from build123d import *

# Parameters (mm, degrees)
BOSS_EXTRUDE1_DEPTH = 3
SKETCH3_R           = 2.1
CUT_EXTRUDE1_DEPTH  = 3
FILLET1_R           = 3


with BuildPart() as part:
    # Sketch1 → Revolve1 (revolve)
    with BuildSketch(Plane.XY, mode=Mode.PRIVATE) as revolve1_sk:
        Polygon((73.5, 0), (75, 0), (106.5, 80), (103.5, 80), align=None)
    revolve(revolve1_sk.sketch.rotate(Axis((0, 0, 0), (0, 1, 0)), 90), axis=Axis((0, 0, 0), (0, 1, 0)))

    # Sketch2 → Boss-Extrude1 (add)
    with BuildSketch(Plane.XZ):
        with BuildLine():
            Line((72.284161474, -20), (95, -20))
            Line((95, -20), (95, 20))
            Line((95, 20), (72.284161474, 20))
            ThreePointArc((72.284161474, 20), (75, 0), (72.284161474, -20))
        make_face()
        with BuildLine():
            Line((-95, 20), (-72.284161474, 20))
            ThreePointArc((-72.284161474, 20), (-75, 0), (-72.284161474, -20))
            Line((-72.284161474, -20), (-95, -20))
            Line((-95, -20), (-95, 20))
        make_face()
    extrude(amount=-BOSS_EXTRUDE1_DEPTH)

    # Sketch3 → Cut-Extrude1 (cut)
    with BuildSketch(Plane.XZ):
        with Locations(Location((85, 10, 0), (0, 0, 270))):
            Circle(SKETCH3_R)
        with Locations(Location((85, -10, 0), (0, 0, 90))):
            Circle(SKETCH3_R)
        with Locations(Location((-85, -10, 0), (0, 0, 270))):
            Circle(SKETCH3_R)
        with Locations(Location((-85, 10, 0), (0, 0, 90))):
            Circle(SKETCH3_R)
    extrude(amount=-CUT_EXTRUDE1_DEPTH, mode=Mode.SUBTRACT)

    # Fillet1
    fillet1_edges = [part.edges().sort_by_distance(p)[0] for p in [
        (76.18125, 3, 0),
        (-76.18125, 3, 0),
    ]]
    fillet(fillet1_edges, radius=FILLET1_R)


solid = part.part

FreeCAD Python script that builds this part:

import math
import FreeCAD as App
import Part
import Sketcher
from FreeCAD import Vector
Q = App.Units.Quantity


def edges_at(feature, points):
    """Names of the edges that pass closest to the given points."""
    edges = feature.Shape.Edges
    near = lambda p: min(range(len(edges)), key=lambda i: edges[i].distToShape(Part.Vertex(*p))[0])
    return sorted({f"Edge{near(p) + 1}" for p in points})

doc = App.newDocument("Part")
body = doc.addObject("PartDesign::Body", "Body")

sketch1 = body.newObject("Sketcher::SketchObject", "Sketch")
sketch1.AttachmentSupport = (doc.getObject("XY_Plane"), [""])
sketch1.MapMode = "FlatFace"
sketch1.addGeometry([
    Part.LineSegment(Vector(73.5, 0, 0), Vector(75, 0, 0)),
    Part.LineSegment(Vector(75, 0, 0), Vector(106.5, 80, 0)),
    Part.LineSegment(Vector(106.5, 80, 0), Vector(103.5, 80, 0)),
    Part.LineSegment(Vector(103.5, 80, 0), Vector(73.5, 0, 0)),
], False)
sketch1.addConstraint([
    Sketcher.Constraint("Coincident", 0, 2, 1, 1),
    Sketcher.Constraint("Coincident", 1, 2, 2, 1),
    Sketcher.Constraint("Coincident", 2, 2, 3, 1),
    Sketcher.Constraint("Coincident", 3, 2, 0, 1),
    Sketcher.Constraint("Horizontal", 0),
    Sketcher.Constraint("Horizontal", 2),
    Sketcher.Constraint("PointOnObject", 0, 2, -1),
    Sketcher.Constraint("DistanceX", 2, 2, 2, 1, Q("3 mm")),
    Sketcher.Constraint("DistanceX", 0, 1, 0, 2, Q("1.5 mm")),
    Sketcher.Constraint("DistanceX", -1, 1, 0, 2, Q("75 mm")),
    Sketcher.Constraint("DistanceY", -1, 1, 1, 2, Q("80 mm")),
    Sketcher.Constraint("DistanceX", 3, 2, 2, 2, Q("30 mm")),
])
revolution = body.newObject("PartDesign::Revolution", "Revolution")
revolution.Profile = sketch1
revolution.ReferenceAxis = (sketch1, ["V_Axis"])
revolution.Angle = 360

sketch2 = body.newObject("Sketcher::SketchObject", "Sketch001")
sketch2.AttachmentSupport = (doc.getObject("XZ_Plane"), [""])
sketch2.MapMode = "FlatFace"
sketch2.addGeometry([
    Part.LineSegment(Vector(72, -20, 0), Vector(95, -20, 0)),
    Part.LineSegment(Vector(95, -20, 0), Vector(95, 20, 0)),
    Part.LineSegment(Vector(95, 20, 0), Vector(72, 20, 0)),
    Part.ArcOfCircle(Part.Circle(Vector(0, 0, 0), Vector(0, 0, 1), 75), math.radians(-15), math.radians(15)),
    Part.LineSegment(Vector(-72, 20, 0), Vector(-95, 20, 0)),
    Part.LineSegment(Vector(-95, 20, 0), Vector(-95, -20, 0)),
    Part.LineSegment(Vector(-95, -20, 0), Vector(-72, -20, 0)),
    Part.ArcOfCircle(Part.Circle(Vector(0, 0, 0), Vector(0, 0, 1), 75), math.radians(165), math.radians(195)),
], False)
sketch2.addConstraint([
    Sketcher.Constraint("Coincident", 0, 2, 1, 1),
    Sketcher.Constraint("Coincident", 1, 2, 2, 1),
    Sketcher.Constraint("Coincident", 2, 2, 3, 2),
    Sketcher.Constraint("Coincident", 3, 1, 0, 1),
    Sketcher.Constraint("Coincident", 4, 2, 5, 1),
    Sketcher.Constraint("Coincident", 5, 2, 6, 1),
    Sketcher.Constraint("Coincident", 6, 2, 7, 2),
    Sketcher.Constraint("Coincident", 7, 1, 4, 1),
    Sketcher.Constraint("Horizontal", 0),
    Sketcher.Constraint("Vertical", 1),
    Sketcher.Constraint("Horizontal", 2),
    Sketcher.Constraint("Horizontal", 4),
    Sketcher.Constraint("Vertical", 5),
    Sketcher.Constraint("Horizontal", 6),
    Sketcher.Constraint("Coincident", 3, 3, -1, 1),
    Sketcher.Constraint("Coincident", 7, 3, -1, 1),
    Sketcher.Constraint("Equal", 3, 7),
    Sketcher.Constraint("Symmetric", 0, 2, 4, 2, -1, 1),
    Sketcher.Constraint("Horizontal", 2, 2, 4, 2),
    Sketcher.Constraint("Horizontal", 3, 1, 5, 2),
    Sketcher.Constraint("Radius", 3, Q("75 mm")),
    Sketcher.Constraint("DistanceY", 1, 1, 1, 2, Q("40 mm")),
    Sketcher.Constraint("DistanceX", -1, 1, 0, 2, Q("95 mm")),
])
pad1 = body.newObject("PartDesign::Pad", "Pad")
pad1.Profile = sketch2
pad1.Length = 3
pad1.Reversed = True

sketch3 = body.newObject("Sketcher::SketchObject", "Sketch002")
sketch3.AttachmentSupport = (doc.getObject("XZ_Plane"), [""])
sketch3.MapMode = "FlatFace"
sketch3.addGeometry([
    Part.Circle(Vector(85, 10, 0), Vector(0, 0, 1), 2.1),
    Part.Circle(Vector(85, -10, 0), Vector(0, 0, 1), 2.1),
    Part.Circle(Vector(-85, -10, 0), Vector(0, 0, 1), 2.1),
    Part.Circle(Vector(-85, 10, 0), Vector(0, 0, 1), 2.1),
], False)
sketch3.addConstraint([
    Sketcher.Constraint("Equal", 0, 1),
    Sketcher.Constraint("Equal", 1, 2),
    Sketcher.Constraint("Equal", 2, 3),
    Sketcher.Constraint("Symmetric", 0, 3, 2, 3, -1, 1),
    Sketcher.Constraint("Symmetric", 1, 3, 3, 3, -1, 1),
    Sketcher.Constraint("Symmetric", 1, 3, 2, 3, -2),
    Sketcher.Constraint("Diameter", 0, Q("4.2 mm")),
    Sketcher.Constraint("DistanceX", -1, 1, 0, 3, Q("85 mm")),
    Sketcher.Constraint("DistanceY", -1, 1, 0, 3, Q("10 mm")),
])
pocket1 = body.newObject("PartDesign::Pocket", "Pocket")
pocket1.Profile = sketch3
pocket1.Length = 3
doc.recompute()

fillet = body.newObject("PartDesign::Fillet", "Fillet")
fillet.Base = (pocket1, edges_at(pocket1, [(76.181, 3, 0), (-76.181, 3, 0)]))
fillet.Radius = 3

doc.recompute()
